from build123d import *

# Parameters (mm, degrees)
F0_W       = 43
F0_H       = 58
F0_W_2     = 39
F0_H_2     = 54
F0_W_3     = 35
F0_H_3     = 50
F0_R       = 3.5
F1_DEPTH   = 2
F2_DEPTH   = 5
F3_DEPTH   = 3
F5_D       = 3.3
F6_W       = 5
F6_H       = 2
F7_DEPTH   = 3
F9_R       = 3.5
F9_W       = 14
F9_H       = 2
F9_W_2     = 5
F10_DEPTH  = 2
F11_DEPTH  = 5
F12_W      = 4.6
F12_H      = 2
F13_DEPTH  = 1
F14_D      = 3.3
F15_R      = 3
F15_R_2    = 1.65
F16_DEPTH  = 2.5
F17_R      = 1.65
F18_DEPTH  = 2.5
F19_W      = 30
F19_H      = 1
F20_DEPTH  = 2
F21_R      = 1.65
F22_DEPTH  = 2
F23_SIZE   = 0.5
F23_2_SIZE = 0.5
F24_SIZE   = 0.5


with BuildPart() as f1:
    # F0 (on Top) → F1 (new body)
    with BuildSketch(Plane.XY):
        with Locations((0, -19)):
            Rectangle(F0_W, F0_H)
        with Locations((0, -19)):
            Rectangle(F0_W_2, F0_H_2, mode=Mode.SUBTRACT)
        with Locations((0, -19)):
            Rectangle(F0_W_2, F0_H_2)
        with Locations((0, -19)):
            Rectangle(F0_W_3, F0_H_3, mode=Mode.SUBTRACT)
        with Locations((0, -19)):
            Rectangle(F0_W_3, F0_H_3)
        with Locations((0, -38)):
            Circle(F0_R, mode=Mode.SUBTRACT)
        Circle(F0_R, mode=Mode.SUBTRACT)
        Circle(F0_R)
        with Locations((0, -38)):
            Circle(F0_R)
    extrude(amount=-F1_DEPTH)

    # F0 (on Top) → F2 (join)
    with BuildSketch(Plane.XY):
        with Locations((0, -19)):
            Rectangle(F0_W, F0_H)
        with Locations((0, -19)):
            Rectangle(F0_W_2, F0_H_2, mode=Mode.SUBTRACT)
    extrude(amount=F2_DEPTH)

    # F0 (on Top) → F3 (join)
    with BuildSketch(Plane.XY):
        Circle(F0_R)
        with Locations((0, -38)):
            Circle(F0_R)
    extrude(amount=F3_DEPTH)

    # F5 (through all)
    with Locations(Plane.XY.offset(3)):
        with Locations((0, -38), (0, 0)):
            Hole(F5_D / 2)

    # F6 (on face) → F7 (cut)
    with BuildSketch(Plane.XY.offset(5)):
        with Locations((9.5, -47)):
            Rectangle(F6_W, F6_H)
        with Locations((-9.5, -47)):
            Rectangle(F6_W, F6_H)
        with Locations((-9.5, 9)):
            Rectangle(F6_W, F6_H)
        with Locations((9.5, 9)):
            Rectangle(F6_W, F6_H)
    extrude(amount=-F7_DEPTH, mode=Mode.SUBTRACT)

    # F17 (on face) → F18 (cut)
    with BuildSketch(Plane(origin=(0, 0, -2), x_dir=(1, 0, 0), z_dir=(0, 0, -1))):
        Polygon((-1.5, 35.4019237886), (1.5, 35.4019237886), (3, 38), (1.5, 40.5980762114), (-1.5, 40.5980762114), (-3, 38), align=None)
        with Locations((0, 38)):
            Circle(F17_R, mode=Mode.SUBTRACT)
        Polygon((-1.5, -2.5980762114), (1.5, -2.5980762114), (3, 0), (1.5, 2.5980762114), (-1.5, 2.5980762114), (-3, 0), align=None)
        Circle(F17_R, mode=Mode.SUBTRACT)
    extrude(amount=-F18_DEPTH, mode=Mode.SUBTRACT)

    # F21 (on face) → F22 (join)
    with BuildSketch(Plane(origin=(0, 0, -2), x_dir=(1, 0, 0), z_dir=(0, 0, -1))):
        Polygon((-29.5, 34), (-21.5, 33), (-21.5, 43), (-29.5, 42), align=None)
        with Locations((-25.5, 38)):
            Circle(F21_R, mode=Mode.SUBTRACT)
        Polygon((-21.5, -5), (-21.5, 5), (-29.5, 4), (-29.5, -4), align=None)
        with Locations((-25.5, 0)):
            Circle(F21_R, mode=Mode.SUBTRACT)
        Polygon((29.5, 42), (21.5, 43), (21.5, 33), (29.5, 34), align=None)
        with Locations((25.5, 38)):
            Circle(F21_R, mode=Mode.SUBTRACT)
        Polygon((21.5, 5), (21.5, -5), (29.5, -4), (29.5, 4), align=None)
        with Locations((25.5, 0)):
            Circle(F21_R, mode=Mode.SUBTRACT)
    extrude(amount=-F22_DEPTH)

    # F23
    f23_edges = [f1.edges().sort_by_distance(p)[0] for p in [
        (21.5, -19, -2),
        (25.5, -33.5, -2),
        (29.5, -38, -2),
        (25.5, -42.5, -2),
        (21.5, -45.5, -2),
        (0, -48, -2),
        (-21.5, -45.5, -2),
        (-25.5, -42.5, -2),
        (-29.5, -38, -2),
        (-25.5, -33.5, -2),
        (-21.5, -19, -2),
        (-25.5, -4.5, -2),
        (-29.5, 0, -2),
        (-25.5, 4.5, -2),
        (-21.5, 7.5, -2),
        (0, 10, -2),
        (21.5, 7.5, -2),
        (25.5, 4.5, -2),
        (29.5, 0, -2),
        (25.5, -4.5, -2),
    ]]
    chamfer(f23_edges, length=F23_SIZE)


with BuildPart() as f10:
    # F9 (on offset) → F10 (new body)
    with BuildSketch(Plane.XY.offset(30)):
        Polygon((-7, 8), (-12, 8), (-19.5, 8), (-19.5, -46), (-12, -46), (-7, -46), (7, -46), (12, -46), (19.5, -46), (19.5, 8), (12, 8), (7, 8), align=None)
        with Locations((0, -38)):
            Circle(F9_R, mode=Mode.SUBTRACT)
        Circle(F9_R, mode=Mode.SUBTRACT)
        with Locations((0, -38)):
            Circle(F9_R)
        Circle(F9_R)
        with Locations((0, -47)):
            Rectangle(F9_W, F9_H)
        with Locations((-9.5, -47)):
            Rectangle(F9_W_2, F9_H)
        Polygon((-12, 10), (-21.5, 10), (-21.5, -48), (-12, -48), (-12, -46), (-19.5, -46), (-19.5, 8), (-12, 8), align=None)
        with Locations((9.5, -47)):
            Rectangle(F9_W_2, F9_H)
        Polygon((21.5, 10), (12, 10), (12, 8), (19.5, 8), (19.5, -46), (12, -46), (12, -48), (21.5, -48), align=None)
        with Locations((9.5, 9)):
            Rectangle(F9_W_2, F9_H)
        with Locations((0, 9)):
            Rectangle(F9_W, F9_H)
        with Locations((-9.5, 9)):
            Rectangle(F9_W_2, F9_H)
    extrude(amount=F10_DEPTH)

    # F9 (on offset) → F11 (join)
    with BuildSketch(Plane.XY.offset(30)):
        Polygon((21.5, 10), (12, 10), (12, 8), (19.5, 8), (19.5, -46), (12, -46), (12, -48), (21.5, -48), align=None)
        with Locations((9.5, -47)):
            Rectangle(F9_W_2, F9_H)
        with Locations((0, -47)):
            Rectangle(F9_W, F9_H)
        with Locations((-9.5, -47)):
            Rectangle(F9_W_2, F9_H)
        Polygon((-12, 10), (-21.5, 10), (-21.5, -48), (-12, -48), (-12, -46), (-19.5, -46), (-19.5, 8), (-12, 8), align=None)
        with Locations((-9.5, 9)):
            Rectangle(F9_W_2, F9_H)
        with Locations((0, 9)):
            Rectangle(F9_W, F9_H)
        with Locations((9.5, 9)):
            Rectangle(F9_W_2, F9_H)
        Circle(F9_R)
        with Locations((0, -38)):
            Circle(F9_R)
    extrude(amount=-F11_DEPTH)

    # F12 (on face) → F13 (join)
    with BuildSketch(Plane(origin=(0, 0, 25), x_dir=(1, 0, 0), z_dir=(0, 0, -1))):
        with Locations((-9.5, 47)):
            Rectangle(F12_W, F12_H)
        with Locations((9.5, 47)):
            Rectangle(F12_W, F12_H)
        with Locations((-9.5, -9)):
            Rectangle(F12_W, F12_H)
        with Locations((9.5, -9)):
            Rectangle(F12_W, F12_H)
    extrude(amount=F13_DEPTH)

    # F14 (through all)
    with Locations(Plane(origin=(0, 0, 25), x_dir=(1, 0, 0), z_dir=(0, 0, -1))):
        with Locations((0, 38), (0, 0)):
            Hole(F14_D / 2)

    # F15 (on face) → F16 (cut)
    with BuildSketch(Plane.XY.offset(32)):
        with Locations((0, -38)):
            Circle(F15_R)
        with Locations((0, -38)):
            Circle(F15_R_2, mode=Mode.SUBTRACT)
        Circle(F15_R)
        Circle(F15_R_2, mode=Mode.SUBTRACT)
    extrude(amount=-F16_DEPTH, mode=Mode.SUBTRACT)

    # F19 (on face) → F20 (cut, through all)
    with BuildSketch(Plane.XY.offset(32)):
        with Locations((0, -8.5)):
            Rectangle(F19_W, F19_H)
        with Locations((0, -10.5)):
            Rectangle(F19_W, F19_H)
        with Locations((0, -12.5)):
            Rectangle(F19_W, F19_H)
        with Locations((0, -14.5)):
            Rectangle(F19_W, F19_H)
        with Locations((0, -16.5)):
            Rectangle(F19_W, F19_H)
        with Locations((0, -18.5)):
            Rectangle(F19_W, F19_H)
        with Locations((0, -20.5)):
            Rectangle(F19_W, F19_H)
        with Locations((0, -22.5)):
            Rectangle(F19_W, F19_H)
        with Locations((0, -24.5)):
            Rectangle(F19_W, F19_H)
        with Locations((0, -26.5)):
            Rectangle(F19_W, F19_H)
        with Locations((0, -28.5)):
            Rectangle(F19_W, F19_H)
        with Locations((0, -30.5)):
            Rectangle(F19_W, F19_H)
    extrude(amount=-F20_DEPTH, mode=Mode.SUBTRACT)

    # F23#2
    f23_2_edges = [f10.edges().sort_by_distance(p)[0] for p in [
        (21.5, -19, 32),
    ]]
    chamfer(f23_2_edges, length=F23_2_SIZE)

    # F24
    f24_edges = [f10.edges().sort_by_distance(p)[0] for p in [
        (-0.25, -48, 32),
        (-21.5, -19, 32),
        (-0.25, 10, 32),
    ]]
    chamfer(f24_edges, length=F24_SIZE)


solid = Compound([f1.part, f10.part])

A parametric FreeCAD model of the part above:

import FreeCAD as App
import Part
import Sketcher

V = App.Vector
Q = App.Units.Quantity


def edges_at(feature, points):
    """Names of the edges that pass closest to the given points."""
    edges = feature.Shape.Edges
    near = lambda p: min(range(len(edges)), key=lambda i: edges[i].distToShape(Part.Vertex(*p))[0])
    return sorted({f"Edge{near(p) + 1}" for p in points})

doc = App.newDocument("Part")
params = doc.addObject("Spreadsheet::Sheet", "Params")
for row, (alias, value) in enumerate([
    ("sketch1_width", "43 mm"),
    ("sketch1_height", "58 mm"),
    ("pad1_length", "2 mm"),
    ("sketch2_width", "43 mm"),
    ("sketch2_width2", "39 mm"),
    ("sketch2_height", "58 mm"),
    ("sketch2_height2", "54 mm"),
    ("pad2_length", "5 mm"),
    ("sketch3_diameter", "7 mm"),
    ("pad3_length", "3 mm"),
    ("sketch4_diameter", "3.3 mm"),
    ("hole_diameter", "3.3 mm"),
    ("sketch5_width", "5 mm"),
    ("sketch5_height", "2 mm"),
    ("pocket1_length", "3 mm"),
    ("sketch6_diameter", "3.3 mm"),
    ("sketch6_width", "3 mm"),
    ("sketch6_length", "3 mm"),
    ("pocket2_length", "2.5 mm"),
    ("sketch7_diameter", "3.3 mm"),
    ("sketch7_height", "10 mm"),
    ("sketch7_height2", "8 mm"),
    ("pad4_length", "2 mm"),
    ("chamfer_size", "0.5 mm"),
    ("sketch8_width", "43 mm"),
    ("sketch8_height", "58 mm"),
    ("pad5_length", "2 mm"),
    ("sketch9_diameter", "7 mm"),
    ("sketch9_width", "43 mm"),
    ("sketch9_width2", "39 mm"),
    ("sketch9_height", "58 mm"),
    ("sketch9_height2", "54 mm"),
    ("pad6_length", "5 mm"),
    ("sketch10_height", "2 mm"),
    ("sketch10_width", "4.6 mm"),
    ("pad7_length", "1 mm"),
    ("sketch11_diameter", "3.3 mm"),
    ("hole2_diameter", "3.3 mm"),
    ("sketch12_diameter", "6 mm"),
    ("sketch12_diameter2", "3.3 mm"),
    ("pocket3_length", "2.5 mm"),
    ("sketch13_width", "30 mm"),
    ("sketch13_height", "1 mm"),
    ("chamfer2_size", "0.5 mm"),
    ("chamfer3_size", "0.5 mm"),
], start=1):
    params.set(f"A{row}", alias)
    params.set(f"B{row}", "=" + value)
    params.setAlias(f"B{row}", alias)

body = doc.addObject("PartDesign::Body", "Body")

sketch1 = body.newObject("Sketcher::SketchObject", "Sketch")
sketch1.AttachmentSupport = (doc.getObject("XY_Plane"), [""])
sketch1.MapMode = "FlatFace"
sketch1.addGeometry([
    Part.LineSegment(V(-21.5, 10, 0), V(-21.5, -48, 0)),
    Part.LineSegment(V(-21.5, -48, 0), V(21.5, -48, 0)),
    Part.LineSegment(V(21.5, -48, 0), V(21.5, 10, 0)),
    Part.LineSegment(V(21.5, 10, 0), V(-21.5, 10, 0)),
], False)
sketch1.addConstraint([
    Sketcher.Constraint("Coincident", 0, 2, 1, 1),
    Sketcher.Constraint("Coincident", 1, 2, 2, 1),
    Sketcher.Constraint("Coincident", 2, 2, 3, 1),
    Sketcher.Constraint("Coincident", 3, 2, 0, 1),
    Sketcher.Constraint("Vertical", 0),
    Sketcher.Constraint("Horizontal", 1),
    Sketcher.Constraint("Vertical", 2),
    Sketcher.Constraint("Horizontal", 3),
    Sketcher.Constraint("DistanceX", 1, 1, 1, 2, Q("43 mm")),
    Sketcher.Constraint("DistanceY", 0, 2, 0, 1, Q("58 mm")),
    Sketcher.Constraint("DistanceY", 0, 2, -1, 1, Q("48 mm")),
    Sketcher.Constraint("DistanceX", 0, 2, -1, 1, Q("21.5 mm")),
])
sketch1.setExpression("Constraints[8]", "Params.sketch1_width")
sketch1.setExpression("Constraints[9]", "Params.sketch1_height")
pad1 = body.newObject("PartDesign::Pad", "Pad")
pad1.Profile = sketch1
pad1.setExpression("Length", "Params.pad1_length")
pad1.Reversed = True

sketch2 = body.newObject("Sketcher::SketchObject", "Sketch001")
sketch2.AttachmentSupport = (doc.getObject("XY_Plane"), [""])
sketch2.MapMode = "FlatFace"
sketch2.addGeometry([
    Part.LineSegment(V(-21.5, 10, 0), V(-21.5, -48, 0)),
    Part.LineSegment(V(-21.5, -48, 0), V(21.5, -48, 0)),
    Part.LineSegment(V(21.5, -48, 0), V(21.5, 10, 0)),
    Part.LineSegment(V(21.5, 10, 0), V(-21.5, 10, 0)),
    Part.LineSegment(V(19.5, -46, 0), V(-19.5, -46, 0)),
    Part.LineSegment(V(-19.5, -46, 0), V(-19.5, 8, 0)),
    Part.LineSegment(V(-19.5, 8, 0), V(19.5, 8, 0)),
    Part.LineSegment(V(19.5, 8, 0), V(19.5, -46, 0)),
], False)
sketch2.addConstraint([
    Sketcher.Constraint("Coincident", 0, 2, 1, 1),
    Sketcher.Constraint("Coincident", 1, 2, 2, 1),
    Sketcher.Constraint("Coincident", 2, 2, 3, 1),
    Sketcher.Constraint("Coincident", 3, 2, 0, 1),
    Sketcher.Constraint("Coincident", 4, 2, 5, 1),
    Sketcher.Constraint("Coincident", 5, 2, 6, 1),
    Sketcher.Constraint("Coincident", 6, 2, 7, 1),
    Sketcher.Constraint("Coincident", 7, 2, 4, 1),
    Sketcher.Constraint("Vertical", 0),
    Sketcher.Constraint("Horizontal", 1),
    Sketcher.Constraint("Vertical", 2),
    Sketcher.Constraint("Horizontal", 3),
    Sketcher.Constraint("Horizontal", 4),
    Sketcher.Constraint("Vertical", 5),
    Sketcher.Constraint("Horizontal", 6),
    Sketcher.Constraint("Vertical", 7),
    Sketcher.Constraint("DistanceX", 1, 1, 1, 2, Q("43 mm")),
    Sketcher.Constraint("DistanceX", 4, 2, 4, 1, Q("39 mm")),
    Sketcher.Constraint("DistanceY", 0, 2, 0, 1, Q("58 mm")),
    Sketcher.Constraint("DistanceY", 5, 1, 5, 2, Q("54 mm")),
    Sketcher.Constraint("DistanceY", 0, 2, -1, 1, Q("48 mm")),
    Sketcher.Constraint("DistanceY", 4, 2, -1, 1, Q("46 mm")),
    Sketcher.Constraint("DistanceX", 0, 2, 4, 2, Q("2 mm")),
    Sketcher.Constraint("DistanceX", 0, 2, -1, 1, Q("21.5 mm")),
])
sketch2.setExpression("Constraints[16]", "Params.sketch2_width")
sketch2.setExpression("Constraints[17]", "Params.sketch2_width2")
sketch2.setExpression("Constraints[18]", "Params.sketch2_height")
sketch2.setExpression("Constraints[19]", "Params.sketch2_height2")
pad2 = body.newObject("PartDesign::Pad", "Pad001")
pad2.Profile = sketch2
pad2.setExpression("Length", "Params.pad2_length")

sketch3 = body.newObject("Sketcher::SketchObject", "Sketch002")
sketch3.AttachmentSupport = (doc.getObject("XY_Plane"), [""])
sketch3.MapMode = "FlatFace"
sketch3.addGeometry([
    Part.Circle(V(0, 0, 0), V(0, 0, 1), 3.5),
    Part.Circle(V(0, -38, 0), V(0, 0, 1), 3.5),
], False)
sketch3.addConstraint([
    Sketcher.Constraint("Coincident", 0, 3, -1, 1),
    Sketcher.Constraint("Equal", 0, 1),
    Sketcher.Constraint("PointOnObject", 1, 3, -2),
    Sketcher.Constraint("Diameter", 0, Q("7 mm")),
    Sketcher.Constraint("DistanceY", 1, 3, -1, 1, Q("38 mm")),
])
sketch3.setExpression("Constraints[3]", "Params.sketch3_diameter")
pad3 = body.newObject("PartDesign::Pad", "Pad002")
pad3.Profile = sketch3
pad3.setExpression("Length", "Params.pad3_length")

sketch4 = body.newObject("Sketcher::SketchObject", "Sketch003")
sketch4.AttachmentSupport = (doc.getObject("XY_Plane"), [""])
sketch4.MapMode = "FlatFace"
sketch4.AttachmentOffset = App.Placement(V(0, 0, 3), App.Rotation())
sketch4.addGeometry([
    Part.Circle(V(0, -38, 0), V(0, 0, 1), 1.65),
    Part.Circle(V(0, 0, 0), V(0, 0, 1), 1.65),
], False)
sketch4.addConstraint([
    Sketcher.Constraint("Coincident", 1, 3, -1, 1),
    Sketcher.Constraint("Equal", 0, 1),
    Sketcher.Constraint("PointOnObject", 0, 3, -2),
    Sketcher.Constraint("Diameter", 0, Q("3.3 mm")),
    Sketcher.Constraint("DistanceY", 0, 3, -1, 1, Q("38 mm")),
])
sketch4.setExpression("Constraints[3]", "Params.sketch4_diameter")
doc.recompute()
hole = body.newObject("PartDesign::Hole", "Hole")
hole.Profile = sketch4
hole.ThreadType = "None"
hole.setExpression("Diameter", "Params.hole_diameter")
hole.DepthType = "ThroughAll"

sketch5 = body.newObject("Sketcher::SketchObject", "Sketch004")
sketch5.AttachmentSupport = (doc.getObject("XY_Plane"), [""])
sketch5.MapMode = "FlatFace"
sketch5.AttachmentOffset = App.Placement(V(0, 0, 5), App.Rotation())
sketch5.addGeometry([
    Part.LineSegment(V(7, -46, 0), V(7, -48, 0)),
    Part.LineSegment(V(7, -48, 0), V(12, -48, 0)),
    Part.LineSegment(V(12, -48, 0), V(12, -46, 0)),
    Part.LineSegment(V(12, -46, 0), V(7, -46, 0)),
    Part.LineSegment(V(-12, -46, 0), V(-12, -48, 0)),
    Part.LineSegment(V(-12, -48, 0), V(-7, -48, 0)),
    Part.LineSegment(V(-7, -48, 0), V(-7, -46, 0)),
    Part.LineSegment(V(-7, -46, 0), V(-12, -46, 0)),
    Part.LineSegment(V(-12, 10, 0), V(-12, 8, 0)),
    Part.LineSegment(V(-12, 8, 0), V(-7, 8, 0)),
    Part.LineSegment(V(-7, 8, 0), V(-7, 10, 0)),
    Part.LineSegment(V(-7, 10, 0), V(-12, 10, 0)),
    Part.LineSegment(V(7, 10, 0), V(7, 8, 0)),
    Part.LineSegment(V(7, 8, 0), V(12, 8, 0)),
    Part.LineSegment(V(12, 8, 0), V(12, 10, 0)),
    Part.LineSegment(V(12, 10, 0), V(7, 10, 0)),
], False)
sketch5.addConstraint([
    Sketcher.Constraint("Coincident", 0, 2, 1, 1),
    Sketcher.Constraint("Coincident", 1, 2, 2, 1),
    Sketcher.Constraint("Coincident", 2, 2, 3, 1),
    Sketcher.Constraint("Coincident", 3, 2, 0, 1),
    Sketcher.Constraint("Coincident", 4, 2, 5, 1),
    Sketcher.Constraint("Coincident", 5, 2, 6, 1),
    Sketcher.Constraint("Coincident", 6, 2, 7, 1),
    Sketcher.Constraint("Coincident", 7, 2, 4, 1),
    Sketcher.Constraint("Coincident", 8, 2, 9, 1),
    Sketcher.Constraint("Coincident", 9, 2, 10, 1),
    Sketcher.Constraint("Coincident", 10, 2, 11, 1),
    Sketcher.Constraint("Coincident", 11, 2, 8, 1),
    Sketcher.Constraint("Coincident", 12, 2, 13, 1),
    Sketcher.Constraint("Coincident", 13, 2, 14, 1),
    Sketcher.Constraint("Coincident", 14, 2, 15, 1),
    Sketcher.Constraint("Coincident", 15, 2, 12, 1),
    Sketcher.Constraint("Vertical", 0),
    Sketcher.Constraint("Horizontal", 1),
    Sketcher.Constraint("Vertical", 2),
    Sketcher.Constraint("Horizontal", 3),
    Sketcher.Constraint("Vertical", 4),
    Sketcher.Constraint("Horizontal", 5),
    Sketcher.Constraint("Vertical", 6),
    Sketcher.Constraint("Horizontal", 7),
    Sketcher.Constraint("Vertical", 8),
    Sketcher.Constraint("Horizontal", 9),
    Sketcher.Constraint("Vertical", 10),
    Sketcher.Constraint("Horizontal", 11),
    Sketcher.Constraint("Vertical", 12),
    Sketcher.Constraint("Horizontal", 13),
    Sketcher.Constraint("Vertical", 14),
    Sketcher.Constraint("Horizontal", 15),
    Sketcher.Constraint("Symmetric", 1, 2, 4, 2, -2),
    Sketcher.Constraint("Symmetric", 3, 2, 6, 2, -2),
    Sketcher.Constraint("Symmetric", 9, 2, 12, 2, -2),
    Sketcher.Constraint("Symmetric", 11, 2, 14, 2, -2),
    Sketcher.Constraint("Vertical", 7, 2, 8, 2),
    Sketcher.Constraint("Vertical", 6, 2, 9, 2),
    Sketcher.Constraint("Equal", 6, 8),
    Sketcher.Constraint("DistanceX", 1, 1, 1, 2, Q("5 mm")),
    Sketcher.Constraint("DistanceY", 0, 2, 0, 1, Q("2 mm")),
    Sketcher.Constraint("DistanceX", -1, 1, 0, 2, Q("7 mm")),
    Sketcher.Constraint("DistanceY", 0, 2, -1, 1, Q("48 mm")),
    Sketcher.Constraint("DistanceY", -1, 1, 8, 2, Q("8 mm")),
])
sketch5.setExpression("Constraints[39]", "Params.sketch5_width")
sketch5.setExpression("Constraints[40]", "Params.sketch5_height")
pocket1 = body.newObject("PartDesign::Pocket", "Pocket")
pocket1.Profile = sketch5
pocket1.setExpression("Length", "Params.pocket1_length")

sketch6 = body.newObject("Sketcher::SketchObject", "Sketch005")
sketch6.AttachmentSupport = (doc.getObject("XY_Plane"), [""])
sketch6.MapMode = "FlatFace"
sketch6.AttachmentOffset = App.Placement(V(0, 0, -2), App.Rotation())
sketch6.addGeometry([
    Part.LineSegment(V(-1.5, -35.401924, 0), V(1.5, -35.401924, 0)),
    Part.LineSegment(V(1.5, -35.401924, 0), V(3, -38, 0)),
    Part.LineSegment(V(3, -38, 0), V(1.5, -40.598076, 0)),
    Part.LineSegment(V(1.5, -40.598076, 0), V(-1.5, -40.598076, 0)),
    Part.LineSegment(V(-1.5, -40.598076, 0), V(-3, -38, 0)),
    Part.LineSegment(V(-3, -38, 0), V(-1.5, -35.401924, 0)),
    Part.Circle(V(0, -38, 0), V(0, 0, 1), 1.65),
    Part.LineSegment(V(-1.5, 2.598076, 0), V(1.5, 2.598076, 0)),
    Part.LineSegment(V(1.5, 2.598076, 0), V(3, 0, 0)),
    Part.LineSegment(V(3, 0, 0), V(1.5, -2.598076, 0)),
    Part.LineSegment(V(1.5, -2.598076, 0), V(-1.5, -2.598076, 0)),
    Part.LineSegment(V(-1.5, -2.598076, 0), V(-3, 0, 0)),
    Part.LineSegment(V(-3, 0, 0), V(-1.5, 2.598076, 0)),
    Part.Circle(V(0, 0, 0), V(0, 0, 1), 1.65),
], False)
sketch6.addConstraint([
    Sketcher.Constraint("Coincident", 0, 2, 1, 1),
    Sketcher.Constraint("Coincident", 1, 2, 2, 1),
    Sketcher.Constraint("Coincident", 2, 2, 3, 1),
    Sketcher.Constraint("Coincident", 3, 2, 4, 1),
    Sketcher.Constraint("Coincident", 4, 2, 5, 1),
    Sketcher.Constraint("Coincident", 5, 2, 0, 1),
    Sketcher.Constraint("Coincident", 7, 2, 8, 1),
    Sketcher.Constraint("Coincident", 8, 2, 9, 1),
    Sketcher.Constraint("Coincident", 9, 2, 10, 1),
    Sketcher.Constraint("Coincident", 10, 2, 11, 1),
    Sketcher.Constraint("Coincident", 11, 2, 12, 1),
    Sketcher.Constraint("Coincident", 12, 2, 7, 1),
    Sketcher.Constraint("Horizontal", 0),
    Sketcher.Constraint("Horizontal", 3),
    Sketcher.Constraint("Horizontal", 7),
    Sketcher.Constraint("Horizontal", 10),
    Sketcher.Constraint("Coincident", 13, 3, -1, 1),
    Sketcher.Constraint("Equal", 6, 13),
    Sketcher.Constraint("Symmetric", 7, 2, 10, 2, -1, 1),
    Sketcher.Constraint("Symmetric", 8, 2, 11, 2, -1, 1),
    Sketcher.Constraint("Symmetric", 1, 2, 4, 2, -2),
    Sketcher.Constraint("PointOnObject", 6, 3, -2),
    Sketcher.Constraint("PointOnObject", 8, 2, -1),
    Sketcher.Constraint("Parallel", 1, 4),
    Sketcher.Constraint("Parallel", 2, 5),
    Sketcher.Constraint("Parallel", 4, 8),
    Sketcher.Constraint("Parallel", 5, 9),
    Sketcher.Constraint("Parallel", 9, 12),
    Sketcher.Constraint("Horizontal", 6, 3, 1, 2),
    Sketcher.Constraint("Vertical", 0, 2, 2, 2),
    Sketcher.Constraint("Vertical", 3, 2, 5, 2),
    Sketcher.Constraint("Vertical", 2, 2, 7, 2),
    Sketcher.Constraint("Vertical", 1, 2, 8, 2),
    Sketcher.Constraint("Diameter", 6, Q("3.3 mm")),
    Sketcher.Constraint("DistanceX", 0, 1, 0, 2, Q("3 mm")),
    Sketcher.Constraint("Angle", 1, Q("-60 deg")),
    Sketcher.Constraint("Distance", 1, Q("3 mm")),
    Sketcher.Constraint("DistanceY", 6, 3, -1, 1, Q("38 mm")),
])
sketch6.setExpression("Constraints[33]", "Params.sketch6_diameter")
sketch6.setExpression("Constraints[34]", "Params.sketch6_width")
sketch6.setExpression("Constraints[36]", "Params.sketch6_length")
pocket2 = body.newObject("PartDesign::Pocket", "Pocket001")
pocket2.Profile = sketch6
pocket2.setExpression("Length", "Params.pocket2_length")
pocket2.Reversed = True

sketch7 = body.newObject("Sketcher::SketchObject", "Sketch006")
sketch7.AttachmentSupport = (doc.getObject("XY_Plane"), [""])
sketch7.MapMode = "FlatFace"
sketch7.AttachmentOffset = App.Placement(V(0, 0, -2), App.Rotation())
sketch7.addGeometry([
    Part.LineSegment(V(-29.5, -34, 0), V(-21.5, -33, 0)),
    Part.LineSegment(V(-21.5, -33, 0), V(-21.5, -43, 0)),
    Part.LineSegment(V(-21.5, -43, 0), V(-29.5, -42, 0)),
    Part.LineSegment(V(-29.5, -42, 0), V(-29.5, -34, 0)),
    Part.Circle(V(-25.5, -38, 0), V(0, 0, 1), 1.65),
    Part.LineSegment(V(-21.5, 5, 0), V(-21.5, -5, 0)),
    Part.LineSegment(V(-21.5, -5, 0), V(-29.5, -4, 0)),
    Part.LineSegment(V(-29.5, -4, 0), V(-29.5, 4, 0)),
    Part.LineSegment(V(-29.5, 4, 0), V(-21.5, 5, 0)),
    Part.Circle(V(-25.5, 0, 0), V(0, 0, 1), 1.65),
    Part.LineSegment(V(29.5, -42, 0), V(21.5, -43, 0)),
    Part.LineSegment(V(21.5, -43, 0), V(21.5, -33, 0)),
    Part.LineSegment(V(21.5, -33, 0), V(29.5, -34, 0)),
    Part.LineSegment(V(29.5, -34, 0), V(29.5, -42, 0)),
    Part.Circle(V(25.5, -38, 0), V(0, 0, 1), 1.65),
    Part.LineSegment(V(21.5, -5, 0), V(21.5, 5, 0)),
    Part.LineSegment(V(21.5, 5, 0), V(29.5, 4, 0)),
    Part.LineSegment(V(29.5, 4, 0), V(29.5, -4, 0)),
    Part.LineSegment(V(29.5, -4, 0), V(21.5, -5, 0)),
    Part.Circle(V(25.5, 0, 0), V(0, 0, 1), 1.65),
], False)
sketch7.addConstraint([
    Sketcher.Constraint("Coincident", 0, 2, 1, 1),
    Sketcher.Constraint("Coincident", 1, 2, 2, 1),
    Sketcher.Constraint("Coincident", 2, 2, 3, 1),
    Sketcher.Constraint("Coincident", 3, 2, 0, 1),
    Sketcher.Constraint("Coincident", 5, 2, 6, 1),
    Sketcher.Constraint("Coincident", 6, 2, 7, 1),
    Sketcher.Constraint("Coincident", 7, 2, 8, 1),
    Sketcher.Constraint("Coincident", 8, 2, 5, 1),
    Sketcher.Constraint("Coincident", 10, 2, 11, 1),
    Sketcher.Constraint("Coincident", 11, 2, 12, 1),
    Sketcher.Constraint("Coincident", 12, 2, 13, 1),
    Sketcher.Constraint("Coincident", 13, 2, 10, 1),
    Sketcher.Constraint("Coincident", 15, 2, 16, 1),
    Sketcher.Constraint("Coincident", 16, 2, 17, 1),
    Sketcher.Constraint("Coincident", 17, 2, 18, 1),
    Sketcher.Constraint("Coincident", 18, 2, 15, 1),
    Sketcher.Constraint("Vertical", 1),
    Sketcher.Constraint("Vertical", 3),
    Sketcher.Constraint("Vertical", 5),
    Sketcher.Constraint("Vertical", 7),
    Sketcher.Constraint("Vertical", 11),
    Sketcher.Constraint("Vertical", 13),
    Sketcher.Constraint("Vertical", 15),
    Sketcher.Constraint("Vertical", 17),
    Sketcher.Constraint("Equal", 4, 9),
    Sketcher.Constraint("Equal", 9, 14),
    Sketcher.Constraint("Equal", 14, 19),
    Sketcher.Constraint("Symmetric", 9, 3, 19, 3, -1, 1),
    Sketcher.Constraint("Symmetric", 5, 2, 15, 2, -1, 1),
    Sketcher.Constraint("Symmetric", 6, 2, 16, 2, -1, 1),
    Sketcher.Constraint("Symmetric", 4, 3, 14, 3, -2),
    Sketcher.Constraint("Symmetric", 1, 2, 10, 2, -2),
    Sketcher.Constraint("Symmetric", 3, 2, 12, 2, -2),
    Sketcher.Constraint("PointOnObject", 9, 3, -1),
    Sketcher.Constraint("Parallel", 2, 6),
    Sketcher.Constraint("Parallel", 0, 8),
    Sketcher.Constraint("Parallel", 8, 10),
    Sketcher.Constraint("Parallel", 6, 12),
    Sketcher.Constraint("Parallel", 10, 18),
    Sketcher.Constraint("Horizontal", 0, 2, 11, 2),
    Sketcher.Constraint("Horizontal", 8, 2, 15, 2),
    Sketcher.Constraint("Horizontal", 6, 2, 17, 2),
    Sketcher.Constraint("Vertical", 4, 3, 9, 3),
    Sketcher.Constraint("Vertical", 1, 2, 5, 2),
    Sketcher.Constraint("Vertical", 3, 2, 6, 2),
    Sketcher.Constraint("Equal", 1, 5),
    Sketcher.Constraint("Diameter", 4, Q("3.3 mm")),
    Sketcher.Constraint("DistanceY", 1, 2, 1, 1, Q("10 mm")),
    Sketcher.Constraint("DistanceY", 3, 1, 3, 2, Q("8 mm")),
    Sketcher.Constraint("DistanceY", 4, 3, -1, 1, Q("38 mm")),
    Sketcher.Constraint("DistanceY", 0, 2, -1, 1, Q("33 mm")),
    Sketcher.Constraint("DistanceX", 4, 3, 14, 3, Q("51 mm")),
    Sketcher.Constraint("DistanceX", 4, 3, 0, 2, Q("4 mm")),
    Sketcher.Constraint("DistanceX", 2, 2, 4, 3, Q("4 mm")),
])
sketch7.setExpression("Constraints[46]", "Params.sketch7_diameter")
sketch7.setExpression("Constraints[47]", "Params.sketch7_height")
sketch7.setExpression("Constraints[48]", "Params.sketch7_height2")
pad4 = body.newObject("PartDesign::Pad", "Pad003")
pad4.Profile = sketch7
pad4.setExpression("Length", "Params.pad4_length")
doc.recompute()

chamfer = body.newObject("PartDesign::Chamfer", "Chamfer")
chamfer.Base = (pad4, edges_at(pad4, [
    (21.5, -19, -2),
    (25.5, -33.5, -2),
    (29.5, -38, -2),
    (25.5, -42.5, -2),
    (21.5, -45.5, -2),
    (0, -48, -2),
    (-21.5, -45.5, -2),
    (-25.5, -42.5, -2),
    (-29.5, -38, -2),
    (-25.5, -33.5, -2),
    (-21.5, -19, -2),
    (-25.5, -4.5, -2),
    (-29.5, 0, -2),
    (-25.5, 4.5, -2),
    (-21.5, 7.5, -2),
    (0, 10, -2),
    (21.5, 7.5, -2),
    (25.5, 4.5, -2),
    (29.5, 0, -2),
    (25.5, -4.5, -2),
]))
chamfer.setExpression("Size", "Params.chamfer_size")
body2 = doc.addObject("PartDesign::Body", "Body001")

sketch8 = body2.newObject("Sketcher::SketchObject", "Sketch007")
sketch8.AttachmentSupport = (doc.getObject("XY_Plane001"), [""])
sketch8.MapMode = "FlatFace"
sketch8.AttachmentOffset = App.Placement(V(0, 0, 30), App.Rotation())
sketch8.addGeometry([
    Part.LineSegment(V(-21.5, 10, 0), V(-21.5, -48, 0)),
    Part.LineSegment(V(-21.5, -48, 0), V(21.5, -48, 0)),
    Part.LineSegment(V(21.5, -48, 0), V(21.5, 10, 0)),
    Part.LineSegment(V(21.5, 10, 0), V(-21.5, 10, 0)),
], False)
sketch8.addConstraint([
    Sketcher.Constraint("Coincident", 0, 2, 1, 1),
    Sketcher.Constraint("Coincident", 1, 2, 2, 1),
    Sketcher.Constraint("Coincident", 2, 2, 3, 1),
    Sketcher.Constraint("Coincident", 3, 2, 0, 1),
    Sketcher.Constraint("Vertical", 0),
    Sketcher.Constraint("Horizontal", 1),
    Sketcher.Constraint("Vertical", 2),
    Sketcher.Constraint("Horizontal", 3),
    Sketcher.Constraint("DistanceX", 1, 1, 1, 2, Q("43 mm")),
    Sketcher.Constraint("DistanceY", 0, 2, 0, 1, Q("58 mm")),
    Sketcher.Constraint("DistanceY", 0, 2, -1, 1, Q("48 mm")),
    Sketcher.Constraint("DistanceX", 0, 2, -1, 1, Q("21.5 mm")),
])
sketch8.setExpression("Constraints[8]", "Params.sketch8_width")
sketch8.setExpression("Constraints[9]", "Params.sketch8_height")
pad5 = body2.newObject("PartDesign::Pad", "Pad004")
pad5.Profile = sketch8
pad5.setExpression("Length", "Params.pad5_length")

sketch9 = body2.newObject("Sketcher::SketchObject", "Sketch008")
sketch9.AttachmentSupport = (doc.getObject("XY_Plane001"), [""])
sketch9.MapMode = "FlatFace"
sketch9.AttachmentOffset = App.Placement(V(0, 0, 30), App.Rotation())
sketch9.addGeometry([
    Part.LineSegment(V(21.5, 10, 0), V(-21.5, 10, 0)),
    Part.LineSegment(V(-21.5, 10, 0), V(-21.5, -48, 0)),
    Part.LineSegment(V(-21.5, -48, 0), V(21.5, -48, 0)),
    Part.LineSegment(V(21.5, -48, 0), V(21.5, 10, 0)),
    Part.LineSegment(V(19.5, 8, 0), V(19.5, -46, 0)),
    Part.LineSegment(V(19.5, -46, 0), V(-19.5, -46, 0)),
    Part.LineSegment(V(-19.5, -46, 0), V(-19.5, 8, 0)),
    Part.LineSegment(V(-19.5, 8, 0), V(19.5, 8, 0)),
    Part.Circle(V(0, 0, 0), V(0, 0, 1), 3.5),
    Part.Circle(V(0, -38, 0), V(0, 0, 1), 3.5),
], False)
sketch9.addConstraint([
    Sketcher.Constraint("Coincident", 0, 2, 1, 1),
    Sketcher.Constraint("Coincident", 1, 2, 2, 1),
    Sketcher.Constraint("Coincident", 2, 2, 3, 1),
    Sketcher.Constraint("Coincident", 3, 2, 0, 1),
    Sketcher.Constraint("Coincident", 4, 2, 5, 1),
    Sketcher.Constraint("Coincident", 5, 2, 6, 1),
    Sketcher.Constraint("Coincident", 6, 2, 7, 1),
    Sketcher.Constraint("Coincident", 7, 2, 4, 1),
    Sketcher.Constraint("Horizontal", 0),
    Sketcher.Constraint("Vertical", 1),
    Sketcher.Constraint("Horizontal", 2),
    Sketcher.Constraint("Vertical", 3),
    Sketcher.Constraint("Vertical", 4),
    Sketcher.Constraint("Horizontal", 5),
    Sketcher.Constraint("Vertical", 6),
    Sketcher.Constraint("Horizontal", 7),
    Sketcher.Constraint("Coincident", 8, 3, -1, 1),
    Sketcher.Constraint("Equal", 8, 9),
    Sketcher.Constraint("PointOnObject", 9, 3, -2),
    Sketcher.Constraint("Diameter", 8, Q("7 mm")),
    Sketcher.Constraint("DistanceX", 0, 2, 0, 1, Q("43 mm")),
    Sketcher.Constraint("DistanceX", 5, 2, 5, 1, Q("39 mm")),
    Sketcher.Constraint("DistanceY", 1, 2, 1, 1, Q("58 mm")),
    Sketcher.Constraint("DistanceY", 4, 2, 4, 1, Q("54 mm")),
    Sketcher.Constraint("DistanceY", 9, 3, -1, 1, Q("38 mm")),
    Sketcher.Constraint("DistanceY", -1, 1, 0, 2, Q("10 mm")),
    Sketcher.Constraint("DistanceY", 4, 2, -1, 1, Q("46 mm")),
    Sketcher.Constraint("DistanceX", 4, 2, 2, 2, Q("2 mm")),
    Sketcher.Constraint("DistanceX", 0, 2, -1, 1, Q("21.5 mm")),
])
sketch9.setExpression("Constraints[19]", "Params.sketch9_diameter")
sketch9.setExpression("Constraints[20]", "Params.sketch9_width")
sketch9.setExpression("Constraints[21]", "Params.sketch9_width2")
sketch9.setExpression("Constraints[22]", "Params.sketch9_height")
sketch9.setExpression("Constraints[23]", "Params.sketch9_height2")
pad6 = body2.newObject("PartDesign::Pad", "Pad005")
pad6.Profile = sketch9
pad6.setExpression("Length", "Params.pad6_length")
pad6.Reversed = True

sketch10 = body2.newObject("Sketcher::SketchObject", "Sketch009")
sketch10.AttachmentSupport = (doc.getObject("XY_Plane001"), [""])
sketch10.MapMode = "FlatFace"
sketch10.AttachmentOffset = App.Placement(V(0, 0, 25), App.Rotation())
sketch10.addGeometry([
    Part.LineSegment(V(-11.8, -48, 0), V(-11.8, -46, 0)),
    Part.LineSegment(V(-11.8, -46, 0), V(-7.2, -46, 0)),
    Part.LineSegment(V(-7.2, -46, 0), V(-7.2, -48, 0)),
    Part.LineSegment(V(-7.2, -48, 0), V(-11.8, -48, 0)),
    Part.LineSegment(V(7.2, -48, 0), V(7.2, -46, 0)),
    Part.LineSegment(V(7.2, -46, 0), V(11.8, -46, 0)),
    Part.LineSegment(V(11.8, -46, 0), V(11.8, -48, 0)),
    Part.LineSegment(V(11.8, -48, 0), V(7.2, -48, 0)),
    Part.LineSegment(V(-11.8, 8, 0), V(-11.8, 10, 0)),
    Part.LineSegment(V(-11.8, 10, 0), V(-7.2, 10, 0)),
    Part.LineSegment(V(-7.2, 10, 0), V(-7.2, 8, 0)),
    Part.LineSegment(V(-7.2, 8, 0), V(-11.8, 8, 0)),
    Part.LineSegment(V(7.2, 8, 0), V(7.2, 10, 0)),
    Part.LineSegment(V(7.2, 10, 0), V(11.8, 10, 0)),
    Part.LineSegment(V(11.8, 10, 0), V(11.8, 8, 0)),
    Part.LineSegment(V(11.8, 8, 0), V(7.2, 8, 0)),
], False)
sketch10.addConstraint([
    Sketcher.Constraint("Coincident", 0, 2, 1, 1),
    Sketcher.Constraint("Coincident", 1, 2, 2, 1),
    Sketcher.Constraint("Coincident", 2, 2, 3, 1),
    Sketcher.Constraint("Coincident", 3, 2, 0, 1),
    Sketcher.Constraint("Coincident", 4, 2, 5, 1),
    Sketcher.Constraint("Coincident", 5, 2, 6, 1),
    Sketcher.Constraint("Coincident", 6, 2, 7, 1),
    Sketcher.Constraint("Coincident", 7, 2, 4, 1),
    Sketcher.Constraint("Coincident", 8, 2, 9, 1),
    Sketcher.Constraint("Coincident", 9, 2, 10, 1),
    Sketcher.Constraint("Coincident", 10, 2, 11, 1),
    Sketcher.Constraint("Coincident", 11, 2, 8, 1),
    Sketcher.Constraint("Coincident", 12, 2, 13, 1),
    Sketcher.Constraint("Coincident", 13, 2, 14, 1),
    Sketcher.Constraint("Coincident", 14, 2, 15, 1),
    Sketcher.Constraint("Coincident", 15, 2, 12, 1),
    Sketcher.Constraint("Vertical", 0),
    Sketcher.Constraint("Horizontal", 1),
    Sketcher.Constraint("Vertical", 2),
    Sketcher.Constraint("Horizontal", 3),
    Sketcher.Constraint("Vertical", 4),
    Sketcher.Constraint("Horizontal", 5),
    Sketcher.Constraint("Vertical", 6),
    Sketcher.Constraint("Horizontal", 7),
    Sketcher.Constraint("Vertical", 8),
    Sketcher.Constraint("Horizontal", 9),
    Sketcher.Constraint("Vertical", 10),
    Sketcher.Constraint("Horizontal", 11),
    Sketcher.Constraint("Vertical", 12),
    Sketcher.Constraint("Horizontal", 13),
    Sketcher.Constraint("Vertical", 14),
    Sketcher.Constraint("Horizontal", 15),
    Sketcher.Constraint("Symmetric", 1, 2, 4, 2, -2),
    Sketcher.Constraint("Symmetric", 3, 2, 6, 2, -2),
    Sketcher.Constraint("Symmetric", 9, 2, 12, 2, -2),
    Sketcher.Constraint("Symmetric", 11, 2, 14, 2, -2),
    Sketcher.Constraint("Vertical", 3, 2, 8, 2),
    Sketcher.Constraint("Vertical", 2, 2, 9, 2),
    Sketcher.Constraint("Equal", 6, 8),
    Sketcher.Constraint("DistanceY", 0, 1, 0, 2, Q("2 mm")),
    Sketcher.Constraint("DistanceX", 1, 1, 1, 2, Q("4.6 mm")),
    Sketcher.Constraint("DistanceY", 0, 2, -1, 1, Q("46 mm")),
    Sketcher.Constraint("DistanceY", -1, 1, 8, 2, Q("10 mm")),
    Sketcher.Constraint("DistanceX", 0, 2, 4, 2, Q("19 mm")),
])
sketch10.setExpression("Constraints[39]", "Params.sketch10_height")
sketch10.setExpression("Constraints[40]", "Params.sketch10_width")
pad7 = body2.newObject("PartDesign::Pad", "Pad006")
pad7.Profile = sketch10
pad7.setExpression("Length", "Params.pad7_length")
pad7.Reversed = True

sketch11 = body2.newObject("Sketcher::SketchObject", "Sketch010")
sketch11.AttachmentSupport = (doc.getObject("XY_Plane001"), [""])
sketch11.MapMode = "FlatFace"
sketch11.AttachmentOffset = App.Placement(V(0, 0, 25), App.Rotation())
sketch11.addGeometry([
    Part.Circle(V(0, -38, 0), V(0, 0, 1), 1.65),
    Part.Circle(V(0, 0, 0), V(0, 0, 1), 1.65),
], False)
sketch11.addConstraint([
    Sketcher.Constraint("Coincident", 1, 3, -1, 1),
    Sketcher.Constraint("Equal", 0, 1),
    Sketcher.Constraint("PointOnObject", 0, 3, -2),
    Sketcher.Constraint("Diameter", 0, Q("3.3 mm")),
    Sketcher.Constraint("DistanceY", 0, 3, -1, 1, Q("38 mm")),
])
sketch11.setExpression("Constraints[3]", "Params.sketch11_diameter")
doc.recompute()
hole2 = body2.newObject("PartDesign::Hole", "Hole001")
hole2.Profile = sketch11
hole2.ThreadType = "None"
hole2.setExpression("Diameter", "Params.hole2_diameter")
hole2.DepthType = "ThroughAll"
hole2.Reversed = True

sketch12 = body2.newObject("Sketcher::SketchObject", "Sketch011")
sketch12.AttachmentSupport = (doc.getObject("XY_Plane001"), [""])
sketch12.MapMode = "FlatFace"
sketch12.AttachmentOffset = App.Placement(V(0, 0, 32), App.Rotation())
sketch12.addGeometry([
    Part.Circle(V(0, -38, 0), V(0, 0, 1), 3),
    Part.Circle(V(0, -38, 0), V(0, 0, 1), 1.65),
    Part.Circle(V(0, 0, 0), V(0, 0, 1), 3),
    Part.Circle(V(0, 0, 0), V(0, 0, 1), 1.65),
], False)
sketch12.addConstraint([
    Sketcher.Constraint("Coincident", 2, 3, -1, 1),
    Sketcher.Constraint("Coincident", 3, 3, -1, 1),
    Sketcher.Constraint("Coincident", 1, 3, 0, 3),
    Sketcher.Constraint("Equal", 0, 2),
    Sketcher.Constraint("Equal", 1, 3),
    Sketcher.Constraint("PointOnObject", 0, 3, -2),
    Sketcher.Constraint("Diameter", 0, Q("6 mm")),
    Sketcher.Constraint("Diameter", 1, Q("3.3 mm")),
    Sketcher.Constraint("DistanceY", 0, 3, -1, 1, Q("38 mm")),
])
sketch12.setExpression("Constraints[6]", "Params.sketch12_diameter")
sketch12.setExpression("Constraints[7]", "Params.sketch12_diameter2")
pocket3 = body2.newObject("PartDesign::Pocket", "Pocket002")
pocket3.Profile = sketch12
pocket3.setExpression("Length", "Params.pocket3_length")

sketch13 = body2.newObject("Sketcher::SketchObject", "Sketch012")
sketch13.AttachmentSupport = (doc.getObject("XY_Plane001"), [""])
sketch13.MapMode = "FlatFace"
sketch13.AttachmentOffset = App.Placement(V(0, 0, 32), App.Rotation())
sketch13.addGeometry([
    Part.LineSegment(V(-15, -8, 0), V(-15, -9, 0)),
    Part.LineSegment(V(-15, -9, 0), V(15, -9, 0)),
    Part.LineSegment(V(15, -9, 0), V(15, -8, 0)),
    Part.LineSegment(V(15, -8, 0), V(-15, -8, 0)),
    Part.LineSegment(V(-15, -10, 0), V(-15, -11, 0)),
    Part.LineSegment(V(-15, -11, 0), V(15, -11, 0)),
    Part.LineSegment(V(15, -11, 0), V(15, -10, 0)),
    Part.LineSegment(V(15, -10, 0), V(-15, -10, 0)),
    Part.LineSegment(V(-15, -12, 0), V(-15, -13, 0)),
    Part.LineSegment(V(-15, -13, 0), V(15, -13, 0)),
    Part.LineSegment(V(15, -13, 0), V(15, -12, 0)),
    Part.LineSegment(V(15, -12, 0), V(-15, -12, 0)),
    Part.LineSegment(V(-15, -14, 0), V(-15, -15, 0)),
    Part.LineSegment(V(-15, -15, 0), V(15, -15, 0)),
    Part.LineSegment(V(15, -15, 0), V(15, -14, 0)),
    Part.LineSegment(V(15, -14, 0), V(-15, -14, 0)),
    Part.LineSegment(V(-15, -16, 0), V(-15, -17, 0)),
    Part.LineSegment(V(-15, -17, 0), V(15, -17, 0)),
    Part.LineSegment(V(15, -17, 0), V(15, -16, 0)),
    Part.LineSegment(V(15, -16, 0), V(-15, -16, 0)),
    Part.LineSegment(V(-15, -18, 0), V(-15, -19, 0)),
    Part.LineSegment(V(-15, -19, 0), V(15, -19, 0)),
    Part.LineSegment(V(15, -19, 0), V(15, -18, 0)),
    Part.LineSegment(V(15, -18, 0), V(-15, -18, 0)),
    Part.LineSegment(V(-15, -20, 0), V(-15, -21, 0)),
    Part.LineSegment(V(-15, -21, 0), V(15, -21, 0)),
    Part.LineSegment(V(15, -21, 0), V(15, -20, 0)),
    Part.LineSegment(V(15, -20, 0), V(-15, -20, 0)),
    Part.LineSegment(V(-15, -22, 0), V(-15, -23, 0)),
    Part.LineSegment(V(-15, -23, 0), V(15, -23, 0)),
    Part.LineSegment(V(15, -23, 0), V(15, -22, 0)),
    Part.LineSegment(V(15, -22, 0), V(-15, -22, 0)),
    Part.LineSegment(V(-15, -24, 0), V(-15, -25, 0)),
    Part.LineSegment(V(-15, -25, 0), V(15, -25, 0)),
    Part.LineSegment(V(15, -25, 0), V(15, -24, 0)),
    Part.LineSegment(V(15, -24, 0), V(-15, -24, 0)),
    Part.LineSegment(V(-15, -26, 0), V(-15, -27, 0)),
    Part.LineSegment(V(-15, -27, 0), V(15, -27, 0)),
    Part.LineSegment(V(15, -27, 0), V(15, -26, 0)),
    Part.LineSegment(V(15, -26, 0), V(-15, -26, 0)),
    Part.LineSegment(V(-15, -28, 0), V(-15, -29, 0)),
    Part.LineSegment(V(-15, -29, 0), V(15, -29, 0)),
    Part.LineSegment(V(15, -29, 0), V(15, -28, 0)),
    Part.LineSegment(V(15, -28, 0), V(-15, -28, 0)),
    Part.LineSegment(V(-15, -30, 0), V(-15, -31, 0)),
    Part.LineSegment(V(-15, -31, 0), V(15, -31, 0)),
    Part.LineSegment(V(15, -31, 0), V(15, -30, 0)),
    Part.LineSegment(V(15, -30, 0), V(-15, -30, 0)),
], False)
sketch13.addConstraint([
    Sketcher.Constraint("Coincident", 0, 2, 1, 1),
    Sketcher.Constraint("Coincident", 1, 2, 2, 1),
    Sketcher.Constraint("Coincident", 2, 2, 3, 1),
    Sketcher.Constraint("Coincident", 3, 2, 0, 1),
    Sketcher.Constraint("Coincident", 4, 2, 5, 1),
    Sketcher.Constraint("Coincident", 5, 2, 6, 1),
    Sketcher.Constraint("Coincident", 6, 2, 7, 1),
    Sketcher.Constraint("Coincident", 7, 2, 4, 1),
    Sketcher.Constraint("Coincident", 8, 2, 9, 1),
    Sketcher.Constraint("Coincident", 9, 2, 10, 1),
    Sketcher.Constraint("Coincident", 10, 2, 11, 1),
    Sketcher.Constraint("Coincident", 11, 2, 8, 1),
    Sketcher.Constraint("Coincident", 12, 2, 13, 1),
    Sketcher.Constraint("Coincident", 13, 2, 14, 1),
    Sketcher.Constraint("Coincident", 14, 2, 15, 1),
    Sketcher.Constraint("Coincident", 15, 2, 12, 1),
    Sketcher.Constraint("Coincident", 16, 2, 17, 1),
    Sketcher.Constraint("Coincident", 17, 2, 18, 1),
    Sketcher.Constraint("Coincident", 18, 2, 19, 1),
    Sketcher.Constraint("Coincident", 19, 2, 16, 1),
    Sketcher.Constraint("Coincident", 20, 2, 21, 1),
    Sketcher.Constraint("Coincident", 21, 2, 22, 1),
    Sketcher.Constraint("Coincident", 22, 2, 23, 1),
    Sketcher.Constraint("Coincident", 23, 2, 20, 1),
    Sketcher.Constraint("Coincident", 24, 2, 25, 1),
    Sketcher.Constraint("Coincident", 25, 2, 26, 1),
    Sketcher.Constraint("Coincident", 26, 2, 27, 1),
    Sketcher.Constraint("Coincident", 27, 2, 24, 1),
    Sketcher.Constraint("Coincident", 28, 2, 29, 1),
    Sketcher.Constraint("Coincident", 29, 2, 30, 1),
    Sketcher.Constraint("Coincident", 30, 2, 31, 1),
    Sketcher.Constraint("Coincident", 31, 2, 28, 1),
    Sketcher.Constraint("Coincident", 32, 2, 33, 1),
    Sketcher.Constraint("Coincident", 33, 2, 34, 1),
    Sketcher.Constraint("Coincident", 34, 2, 35, 1),
    Sketcher.Constraint("Coincident", 35, 2, 32, 1),
    Sketcher.Constraint("Coincident", 36, 2, 37, 1),
    Sketcher.Constraint("Coincident", 37, 2, 38, 1),
    Sketcher.Constraint("Coincident", 38, 2, 39, 1),
    Sketcher.Constraint("Coincident", 39, 2, 36, 1),
    Sketcher.Constraint("Coincident", 40, 2, 41, 1),
    Sketcher.Constraint("Coincident", 41, 2, 42, 1),
    Sketcher.Constraint("Coincident", 42, 2, 43, 1),
    Sketcher.Constraint("Coincident", 43, 2, 40, 1),
    Sketcher.Constraint("Coincident", 44, 2, 45, 1),
    Sketcher.Constraint("Coincident", 45, 2, 46, 1),
    Sketcher.Constraint("Coincident", 46, 2, 47, 1),
    Sketcher.Constraint("Coincident", 47, 2, 44, 1),
    Sketcher.Constraint("Vertical", 0),
    Sketcher.Constraint("Horizontal", 1),
    Sketcher.Constraint("Vertical", 2),
    Sketcher.Constraint("Horizontal", 3),
    Sketcher.Constraint("Vertical", 4),
    Sketcher.Constraint("Horizontal", 5),
    Sketcher.Constraint("Vertical", 6),
    Sketcher.Constraint("Horizontal", 7),
    Sketcher.Constraint("Vertical", 8),
    Sketcher.Constraint("Horizontal", 9),
    Sketcher.Constraint("Vertical", 10),
    Sketcher.Constraint("Horizontal", 11),
    Sketcher.Constraint("Vertical", 12),
    Sketcher.Constraint("Horizontal", 13),
    Sketcher.Constraint("Vertical", 14),
    Sketcher.Constraint("Horizontal", 15),
    Sketcher.Constraint("Vertical", 16),
    Sketcher.Constraint("Horizontal", 17),
    Sketcher.Constraint("Vertical", 18),
    Sketcher.Constraint("Horizontal", 19),
    Sketcher.Constraint("Vertical", 20),
    Sketcher.Constraint("Horizontal", 21),
    Sketcher.Constraint("Vertical", 22),
    Sketcher.Constraint("Horizontal", 23),
    Sketcher.Constraint("Vertical", 24),
    Sketcher.Constraint("Horizontal", 25),
    Sketcher.Constraint("Vertical", 26),
    Sketcher.Constraint("Horizontal", 27),
    Sketcher.Constraint("Vertical", 28),
    Sketcher.Constraint("Horizontal", 29),
    Sketcher.Constraint("Vertical", 30),
    Sketcher.Constraint("Horizontal", 31),
    Sketcher.Constraint("Vertical", 32),
    Sketcher.Constraint("Horizontal", 33),
    Sketcher.Constraint("Vertical", 34),
    Sketcher.Constraint("Horizontal", 35),
    Sketcher.Constraint("Vertical", 36),
    Sketcher.Constraint("Horizontal", 37),
    Sketcher.Constraint("Vertical", 38),
    Sketcher.Constraint("Horizontal", 39),
    Sketcher.Constraint("Vertical", 40),
    Sketcher.Constraint("Horizontal", 41),
    Sketcher.Constraint("Vertical", 42),
    Sketcher.Constraint("Horizontal", 43),
    Sketcher.Constraint("Vertical", 44),
    Sketcher.Constraint("Horizontal", 45),
    Sketcher.Constraint("Vertical", 46),
    Sketcher.Constraint("Horizontal", 47),
    Sketcher.Constraint("Vertical", 3, 2, 4, 2),
    Sketcher.Constraint("Vertical", 2, 2, 5, 2),
    Sketcher.Constraint("Vertical", 7, 2, 8, 2),
    Sketcher.Constraint("Vertical", 6, 2, 9, 2),
    Sketcher.Constraint("Vertical", 11, 2, 12, 2),
    Sketcher.Constraint("Vertical", 10, 2, 13, 2),
    Sketcher.Constraint("Vertical", 15, 2, 16, 2),
    Sketcher.Constraint("Vertical", 14, 2, 17, 2),
    Sketcher.Constraint("Vertical", 19, 2, 20, 2),
    Sketcher.Constraint("Vertical", 18, 2, 21, 2),
    Sketcher.Constraint("Vertical", 23, 2, 24, 2),
    Sketcher.Constraint("Vertical", 22, 2, 25, 2),
    Sketcher.Constraint("Vertical", 27, 2, 28, 2),
    Sketcher.Constraint("Vertical", 26, 2, 29, 2),
    Sketcher.Constraint("Vertical", 31, 2, 32, 2),
    Sketcher.Constraint("Vertical", 30, 2, 33, 2),
    Sketcher.Constraint("Vertical", 35, 2, 36, 2),
    Sketcher.Constraint("Vertical", 34, 2, 37, 2),
    Sketcher.Constraint("Vertical", 39, 2, 40, 2),
    Sketcher.Constraint("Vertical", 38, 2, 41, 2),
    Sketcher.Constraint("Vertical", 43, 2, 44, 2),
    Sketcher.Constraint("Vertical", 42, 2, 45, 2),
    Sketcher.Constraint("Equal", 2, 4),
    Sketcher.Constraint("Equal", 6, 8),
    Sketcher.Constraint("Equal", 10, 12),
    Sketcher.Constraint("Equal", 14, 16),
    Sketcher.Constraint("Equal", 18, 20),
    Sketcher.Constraint("Equal", 22, 24),
    Sketcher.Constraint("Equal", 26, 28),
    Sketcher.Constraint("Equal", 30, 32),
    Sketcher.Constraint("Equal", 34, 36),
    Sketcher.Constraint("Equal", 38, 40),
    Sketcher.Constraint("Equal", 42, 44),
    Sketcher.Constraint("DistanceX", 1, 1, 1, 2, Q("30 mm")),
    Sketcher.Constraint("DistanceY", 0, 2, 0, 1, Q("1 mm")),
    Sketcher.Constraint("DistanceX", 0, 2, -1, 1, Q("15 mm")),
    Sketcher.Constraint("DistanceY", 0, 2, -1, 1, Q("9 mm")),
    Sketcher.Constraint("DistanceY", 4, 2, -1, 1, Q("11 mm")),
    Sketcher.Constraint("DistanceY", 8, 2, -1, 1, Q("13 mm")),
    Sketcher.Constraint("DistanceY", 12, 2, -1, 1, Q("15 mm")),
    Sketcher.Constraint("DistanceY", 16, 2, -1, 1, Q("17 mm")),
    Sketcher.Constraint("DistanceY", 20, 2, -1, 1, Q("19 mm")),
    Sketcher.Constraint("DistanceY", 24, 2, -1, 1, Q("21 mm")),
    Sketcher.Constraint("DistanceY", 28, 2, -1, 1, Q("23 mm")),
    Sketcher.Constraint("DistanceY", 32, 2, -1, 1, Q("25 mm")),
    Sketcher.Constraint("DistanceY", 36, 2, -1, 1, Q("27 mm")),
    Sketcher.Constraint("DistanceY", 40, 2, -1, 1, Q("29 mm")),
    Sketcher.Constraint("DistanceY", 44, 2, -1, 1, Q("31 mm")),
])
sketch13.setExpression("Constraints[129]", "Params.sketch13_width")
sketch13.setExpression("Constraints[130]", "Params.sketch13_height")
pocket4 = body2.newObject("PartDesign::Pocket", "Pocket003")
pocket4.Profile = sketch13
pocket4.Type = "ThroughAll"
doc.recompute()

chamfer2 = body2.newObject("PartDesign::Chamfer", "Chamfer001")
chamfer2.Base = (pocket4, edges_at(pocket4, [(21.5, -19, 32)]))
chamfer2.setExpression("Size", "Params.chamfer2_size")
doc.recompute()

chamfer3 = body2.newObject("PartDesign::Chamfer", "Chamfer002")
chamfer3.Base = (chamfer2, edges_at(chamfer2, [(-0.25, -48, 32), (-21.5, -19, 32), (-0.25, 10, 32)]))
chamfer3.setExpression("Size", "Params.chamfer3_size")

doc.recompute()
